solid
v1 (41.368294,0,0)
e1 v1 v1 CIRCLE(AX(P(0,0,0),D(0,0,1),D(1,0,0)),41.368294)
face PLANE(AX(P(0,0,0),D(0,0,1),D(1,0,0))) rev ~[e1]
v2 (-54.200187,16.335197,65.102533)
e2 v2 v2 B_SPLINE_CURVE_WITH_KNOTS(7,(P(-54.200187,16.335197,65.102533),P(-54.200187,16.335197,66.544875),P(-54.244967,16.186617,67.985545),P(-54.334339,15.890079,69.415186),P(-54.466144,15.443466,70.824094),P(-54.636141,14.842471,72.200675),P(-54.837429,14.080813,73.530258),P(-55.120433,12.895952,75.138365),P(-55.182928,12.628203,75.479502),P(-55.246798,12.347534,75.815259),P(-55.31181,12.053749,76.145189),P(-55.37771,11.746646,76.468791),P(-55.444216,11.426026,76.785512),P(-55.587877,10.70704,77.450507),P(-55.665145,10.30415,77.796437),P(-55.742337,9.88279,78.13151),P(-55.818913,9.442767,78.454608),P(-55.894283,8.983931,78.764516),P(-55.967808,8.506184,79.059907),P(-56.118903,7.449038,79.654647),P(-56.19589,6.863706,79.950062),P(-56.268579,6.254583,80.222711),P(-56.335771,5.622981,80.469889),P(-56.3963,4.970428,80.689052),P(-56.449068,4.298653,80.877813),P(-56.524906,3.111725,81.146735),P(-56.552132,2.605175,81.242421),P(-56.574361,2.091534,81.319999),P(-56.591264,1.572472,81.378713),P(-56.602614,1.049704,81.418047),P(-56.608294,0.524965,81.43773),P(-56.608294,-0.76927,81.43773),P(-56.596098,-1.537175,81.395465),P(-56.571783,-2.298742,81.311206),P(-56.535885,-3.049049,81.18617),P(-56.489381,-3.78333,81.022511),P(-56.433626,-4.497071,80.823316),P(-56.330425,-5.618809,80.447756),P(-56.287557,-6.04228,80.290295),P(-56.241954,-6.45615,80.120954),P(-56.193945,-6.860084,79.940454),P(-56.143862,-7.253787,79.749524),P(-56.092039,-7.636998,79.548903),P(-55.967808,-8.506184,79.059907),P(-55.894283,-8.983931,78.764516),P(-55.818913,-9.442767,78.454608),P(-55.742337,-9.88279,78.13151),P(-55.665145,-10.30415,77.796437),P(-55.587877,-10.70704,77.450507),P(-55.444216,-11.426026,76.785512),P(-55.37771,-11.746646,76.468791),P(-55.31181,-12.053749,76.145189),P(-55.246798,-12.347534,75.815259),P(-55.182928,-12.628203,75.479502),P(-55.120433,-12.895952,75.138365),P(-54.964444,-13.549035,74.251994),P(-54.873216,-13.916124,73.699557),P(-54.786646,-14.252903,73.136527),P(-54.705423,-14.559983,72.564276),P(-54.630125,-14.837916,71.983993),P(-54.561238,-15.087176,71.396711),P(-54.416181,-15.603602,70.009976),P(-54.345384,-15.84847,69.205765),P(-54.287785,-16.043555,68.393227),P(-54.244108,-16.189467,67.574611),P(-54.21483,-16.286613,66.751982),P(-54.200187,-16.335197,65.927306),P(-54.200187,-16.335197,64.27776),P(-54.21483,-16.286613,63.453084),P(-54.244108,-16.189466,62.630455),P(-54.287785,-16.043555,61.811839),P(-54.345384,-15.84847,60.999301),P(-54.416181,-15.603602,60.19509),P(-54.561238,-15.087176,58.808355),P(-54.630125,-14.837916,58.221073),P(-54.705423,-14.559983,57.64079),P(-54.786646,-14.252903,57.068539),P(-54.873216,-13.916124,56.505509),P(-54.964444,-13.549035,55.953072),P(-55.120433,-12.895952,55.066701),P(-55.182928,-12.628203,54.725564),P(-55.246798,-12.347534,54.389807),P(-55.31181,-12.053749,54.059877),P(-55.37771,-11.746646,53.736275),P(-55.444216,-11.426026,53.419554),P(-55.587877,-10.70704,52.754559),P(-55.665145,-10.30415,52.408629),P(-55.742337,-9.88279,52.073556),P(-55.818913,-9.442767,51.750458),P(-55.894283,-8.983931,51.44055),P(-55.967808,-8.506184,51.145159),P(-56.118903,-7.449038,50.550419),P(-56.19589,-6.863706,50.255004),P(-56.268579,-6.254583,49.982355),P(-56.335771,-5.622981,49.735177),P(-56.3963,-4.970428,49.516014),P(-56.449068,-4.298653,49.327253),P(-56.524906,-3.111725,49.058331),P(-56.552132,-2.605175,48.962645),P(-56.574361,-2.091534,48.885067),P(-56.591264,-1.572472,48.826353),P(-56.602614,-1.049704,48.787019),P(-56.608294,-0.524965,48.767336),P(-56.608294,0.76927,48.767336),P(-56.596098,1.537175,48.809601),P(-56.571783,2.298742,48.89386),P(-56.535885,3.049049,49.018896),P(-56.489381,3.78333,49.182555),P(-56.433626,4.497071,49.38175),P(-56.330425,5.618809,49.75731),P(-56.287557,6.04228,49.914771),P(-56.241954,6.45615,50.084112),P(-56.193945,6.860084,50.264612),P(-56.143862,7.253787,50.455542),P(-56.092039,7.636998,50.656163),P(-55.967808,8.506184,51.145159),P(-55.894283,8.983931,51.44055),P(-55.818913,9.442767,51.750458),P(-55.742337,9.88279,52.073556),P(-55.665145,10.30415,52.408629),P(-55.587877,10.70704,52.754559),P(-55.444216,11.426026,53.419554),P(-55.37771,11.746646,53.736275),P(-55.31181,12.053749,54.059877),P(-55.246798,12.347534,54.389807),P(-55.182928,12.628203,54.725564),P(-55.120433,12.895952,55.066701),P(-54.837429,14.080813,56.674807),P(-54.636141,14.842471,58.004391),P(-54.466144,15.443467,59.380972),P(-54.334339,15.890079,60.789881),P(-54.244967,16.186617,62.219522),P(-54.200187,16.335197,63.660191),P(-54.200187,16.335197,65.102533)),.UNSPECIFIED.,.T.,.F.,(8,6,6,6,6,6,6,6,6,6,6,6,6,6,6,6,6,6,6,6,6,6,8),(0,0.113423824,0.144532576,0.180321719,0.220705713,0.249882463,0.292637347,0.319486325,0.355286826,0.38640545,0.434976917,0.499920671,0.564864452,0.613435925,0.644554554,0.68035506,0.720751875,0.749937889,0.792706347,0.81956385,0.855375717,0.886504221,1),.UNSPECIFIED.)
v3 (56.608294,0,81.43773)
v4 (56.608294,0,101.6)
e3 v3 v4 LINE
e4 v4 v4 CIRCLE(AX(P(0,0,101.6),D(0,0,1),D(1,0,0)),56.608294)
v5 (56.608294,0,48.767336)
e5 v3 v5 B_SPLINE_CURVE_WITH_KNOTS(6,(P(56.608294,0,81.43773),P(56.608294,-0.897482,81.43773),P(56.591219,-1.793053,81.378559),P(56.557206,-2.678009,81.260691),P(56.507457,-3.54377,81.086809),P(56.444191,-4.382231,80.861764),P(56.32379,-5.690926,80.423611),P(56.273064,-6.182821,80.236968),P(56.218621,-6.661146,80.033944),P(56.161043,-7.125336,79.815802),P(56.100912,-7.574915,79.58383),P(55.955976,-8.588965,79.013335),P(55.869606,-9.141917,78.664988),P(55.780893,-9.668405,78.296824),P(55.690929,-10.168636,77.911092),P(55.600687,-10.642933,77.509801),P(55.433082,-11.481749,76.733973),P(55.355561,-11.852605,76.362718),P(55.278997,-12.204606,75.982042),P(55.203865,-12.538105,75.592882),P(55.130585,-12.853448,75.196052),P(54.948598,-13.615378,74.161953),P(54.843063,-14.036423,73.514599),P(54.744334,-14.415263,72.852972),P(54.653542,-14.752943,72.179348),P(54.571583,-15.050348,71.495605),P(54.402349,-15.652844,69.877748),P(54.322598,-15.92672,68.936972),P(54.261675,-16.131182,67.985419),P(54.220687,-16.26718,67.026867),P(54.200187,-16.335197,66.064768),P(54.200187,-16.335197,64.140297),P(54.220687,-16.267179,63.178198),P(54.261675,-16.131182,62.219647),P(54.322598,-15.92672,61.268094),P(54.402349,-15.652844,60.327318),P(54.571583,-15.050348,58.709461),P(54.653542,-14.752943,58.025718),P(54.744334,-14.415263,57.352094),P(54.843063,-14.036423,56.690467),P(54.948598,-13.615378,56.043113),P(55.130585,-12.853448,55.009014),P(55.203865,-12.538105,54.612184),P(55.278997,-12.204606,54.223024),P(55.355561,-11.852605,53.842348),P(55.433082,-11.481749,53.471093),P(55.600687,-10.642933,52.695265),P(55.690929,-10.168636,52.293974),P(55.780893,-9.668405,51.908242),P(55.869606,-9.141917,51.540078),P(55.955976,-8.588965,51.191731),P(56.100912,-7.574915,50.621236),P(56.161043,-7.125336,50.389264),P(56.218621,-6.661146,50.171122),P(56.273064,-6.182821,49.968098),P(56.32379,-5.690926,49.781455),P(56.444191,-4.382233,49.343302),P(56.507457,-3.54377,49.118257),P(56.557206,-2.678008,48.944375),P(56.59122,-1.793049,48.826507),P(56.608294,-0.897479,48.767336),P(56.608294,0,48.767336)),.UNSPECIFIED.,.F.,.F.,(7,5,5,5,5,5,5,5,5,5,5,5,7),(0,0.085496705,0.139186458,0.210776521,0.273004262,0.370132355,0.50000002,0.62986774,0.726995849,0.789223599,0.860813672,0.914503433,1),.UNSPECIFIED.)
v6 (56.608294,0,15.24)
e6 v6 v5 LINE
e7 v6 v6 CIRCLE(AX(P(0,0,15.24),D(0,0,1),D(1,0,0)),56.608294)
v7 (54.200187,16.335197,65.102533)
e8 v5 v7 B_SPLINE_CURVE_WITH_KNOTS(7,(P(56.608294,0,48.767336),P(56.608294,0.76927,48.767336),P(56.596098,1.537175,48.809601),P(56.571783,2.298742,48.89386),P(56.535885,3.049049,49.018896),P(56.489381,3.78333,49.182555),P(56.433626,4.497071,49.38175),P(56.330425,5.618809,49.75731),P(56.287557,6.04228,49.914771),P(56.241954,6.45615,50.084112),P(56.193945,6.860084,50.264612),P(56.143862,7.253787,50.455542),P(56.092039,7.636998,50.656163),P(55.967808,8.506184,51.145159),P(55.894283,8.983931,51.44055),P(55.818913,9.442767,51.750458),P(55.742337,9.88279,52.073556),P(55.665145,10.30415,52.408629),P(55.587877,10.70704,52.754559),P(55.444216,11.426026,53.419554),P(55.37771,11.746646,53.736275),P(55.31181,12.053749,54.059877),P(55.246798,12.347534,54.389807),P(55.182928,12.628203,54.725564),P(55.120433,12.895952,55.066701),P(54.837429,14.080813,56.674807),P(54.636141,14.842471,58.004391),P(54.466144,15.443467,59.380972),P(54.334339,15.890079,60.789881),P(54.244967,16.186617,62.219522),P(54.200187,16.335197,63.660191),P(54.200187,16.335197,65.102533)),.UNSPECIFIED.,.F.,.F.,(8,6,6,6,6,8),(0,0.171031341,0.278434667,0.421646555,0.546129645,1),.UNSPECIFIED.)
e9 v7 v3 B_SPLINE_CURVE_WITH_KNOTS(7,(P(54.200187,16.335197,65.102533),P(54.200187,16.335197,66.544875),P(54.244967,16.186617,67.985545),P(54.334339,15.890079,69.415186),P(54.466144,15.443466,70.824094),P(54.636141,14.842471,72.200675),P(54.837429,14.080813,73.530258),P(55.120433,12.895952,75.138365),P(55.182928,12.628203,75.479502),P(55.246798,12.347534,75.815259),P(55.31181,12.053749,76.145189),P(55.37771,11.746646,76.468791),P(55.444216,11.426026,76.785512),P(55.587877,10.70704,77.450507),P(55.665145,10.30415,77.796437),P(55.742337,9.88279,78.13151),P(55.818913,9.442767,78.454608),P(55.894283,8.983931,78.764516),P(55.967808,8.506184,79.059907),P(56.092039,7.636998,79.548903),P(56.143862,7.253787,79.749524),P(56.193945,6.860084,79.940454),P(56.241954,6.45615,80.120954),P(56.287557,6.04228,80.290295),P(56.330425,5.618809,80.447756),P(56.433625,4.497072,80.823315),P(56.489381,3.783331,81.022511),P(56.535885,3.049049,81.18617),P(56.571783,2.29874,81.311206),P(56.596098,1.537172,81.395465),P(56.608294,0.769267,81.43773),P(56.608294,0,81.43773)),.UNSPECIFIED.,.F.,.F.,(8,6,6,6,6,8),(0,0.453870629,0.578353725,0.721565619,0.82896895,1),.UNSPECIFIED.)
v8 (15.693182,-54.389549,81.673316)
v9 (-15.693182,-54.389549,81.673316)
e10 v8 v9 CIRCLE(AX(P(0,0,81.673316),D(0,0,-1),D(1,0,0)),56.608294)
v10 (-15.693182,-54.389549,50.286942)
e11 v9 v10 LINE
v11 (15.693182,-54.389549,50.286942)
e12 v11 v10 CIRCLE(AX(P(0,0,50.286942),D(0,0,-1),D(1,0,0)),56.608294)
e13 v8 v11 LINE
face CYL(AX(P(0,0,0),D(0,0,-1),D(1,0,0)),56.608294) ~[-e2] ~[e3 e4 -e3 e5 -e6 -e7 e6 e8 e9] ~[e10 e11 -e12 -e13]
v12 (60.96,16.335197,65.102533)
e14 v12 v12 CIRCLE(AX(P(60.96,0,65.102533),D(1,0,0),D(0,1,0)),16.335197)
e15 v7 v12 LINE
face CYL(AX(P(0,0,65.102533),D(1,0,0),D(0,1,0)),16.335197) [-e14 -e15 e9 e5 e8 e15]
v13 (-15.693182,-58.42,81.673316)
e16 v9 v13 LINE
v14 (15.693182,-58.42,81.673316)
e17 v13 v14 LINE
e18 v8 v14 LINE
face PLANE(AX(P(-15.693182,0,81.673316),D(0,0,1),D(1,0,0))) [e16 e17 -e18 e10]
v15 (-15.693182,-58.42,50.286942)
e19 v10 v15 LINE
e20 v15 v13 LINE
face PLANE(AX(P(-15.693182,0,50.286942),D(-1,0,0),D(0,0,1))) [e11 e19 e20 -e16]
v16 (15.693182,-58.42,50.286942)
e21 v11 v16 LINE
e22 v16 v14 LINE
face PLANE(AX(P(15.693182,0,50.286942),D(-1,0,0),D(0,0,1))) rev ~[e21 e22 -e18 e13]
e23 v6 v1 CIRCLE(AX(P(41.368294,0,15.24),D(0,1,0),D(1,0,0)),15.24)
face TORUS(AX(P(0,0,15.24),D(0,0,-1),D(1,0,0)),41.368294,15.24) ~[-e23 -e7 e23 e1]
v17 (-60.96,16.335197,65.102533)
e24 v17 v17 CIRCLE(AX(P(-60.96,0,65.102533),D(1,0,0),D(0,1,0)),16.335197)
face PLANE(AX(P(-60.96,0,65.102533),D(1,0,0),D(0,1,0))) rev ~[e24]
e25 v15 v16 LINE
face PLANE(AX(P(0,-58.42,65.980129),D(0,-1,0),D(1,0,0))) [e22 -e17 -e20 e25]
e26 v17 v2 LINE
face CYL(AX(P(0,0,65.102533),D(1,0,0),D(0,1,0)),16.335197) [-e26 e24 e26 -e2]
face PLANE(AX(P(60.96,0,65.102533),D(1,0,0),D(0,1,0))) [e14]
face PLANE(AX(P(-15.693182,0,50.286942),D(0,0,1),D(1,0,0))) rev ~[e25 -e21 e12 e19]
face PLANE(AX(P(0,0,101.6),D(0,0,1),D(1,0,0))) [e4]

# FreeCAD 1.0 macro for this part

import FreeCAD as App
import Part
import Sketcher
from FreeCAD import Vector
Q = App.Units.Quantity


def edges_at(feature, points):
    """Names of the edges that pass closest to the given points."""
    edges = feature.Shape.Edges
    near = lambda p: min(range(len(edges)), key=lambda i: edges[i].distToShape(Part.Vertex(*p))[0])
    return sorted({f"Edge{near(p) + 1}" for p in points})

doc = App.newDocument("Part")
body = doc.addObject("PartDesign::Body", "Body")

sketch1 = body.newObject("Sketcher::SketchObject", "Sketch")
sketch1.AttachmentSupport = (doc.getObject("XY_Plane"), [""])
sketch1.MapMode = "FlatFace"
sketch1.addGeometry(Part.Circle(Vector(0, 0, 0), Vector(0, 0, 1), 57), False)
sketch1.addConstraint(Sketcher.Constraint("Coincident", 0, 3, -1, 1))
sketch1.addConstraint(Sketcher.Constraint("Diameter", 0, Q("113.216588 mm")))
pad1 = body.newObject("PartDesign::Pad", "Pad")
pad1.Profile = sketch1
pad1.Length = Q("4 in")
doc.recompute()

fillet = body.newObject("PartDesign::Fillet", "Fillet")
fillet.Base = (pad1, edges_at(pad1, [(-56.608, 0, 0)]))
fillet.Radius = Q("0.6 in")

sketch2 = body.newObject("Sketcher::SketchObject", "Sketch001")
sketch2.AttachmentSupport = (doc.getObject("XZ_Plane"), [""])
sketch2.MapMode = "FlatFace"
sketch2.addGeometry(Part.LineSegment(Vector(-16, 82, 0), Vector(-16, 50, 0)), False)
sketch2.addGeometry(Part.LineSegment(Vector(-16, 50, 0), Vector(16, 50, 0)), False)
sketch2.addGeometry(Part.LineSegment(Vector(16, 50, 0), Vector(16, 82, 0)), False)
sketch2.addGeometry(Part.LineSegment(Vector(16, 82, 0), Vector(-16, 82, 0)), False)
sketch2.addConstraint(Sketcher.Constraint("Coincident", 0, 2, 1, 1))
sketch2.addConstraint(Sketcher.Constraint("Coincident", 1, 2, 2, 1))
sketch2.addConstraint(Sketcher.Constraint("Coincident", 2, 2, 3, 1))
sketch2.addConstraint(Sketcher.Constraint("Coincident", 3, 2, 0, 1))
sketch2.addConstraint(Sketcher.Constraint("Vertical", 0))
sketch2.addConstraint(Sketcher.Constraint("Horizontal", 1))
sketch2.addConstraint(Sketcher.Constraint("Vertical", 2))
sketch2.addConstraint(Sketcher.Constraint("Horizontal", 3))
sketch2.addConstraint(Sketcher.Constraint("DistanceX", 1, 1, 1, 2, Q("31.386364 mm")))
sketch2.addConstraint(Sketcher.Constraint("DistanceY", 0, 2, 0, 1, Q("31.386374 mm")))
sketch2.addConstraint(Sketcher.Constraint("DistanceX", 0, 2, -1, 1, Q("15.693182 mm")))
sketch2.addConstraint(Sketcher.Constraint("DistanceY", -1, 1, 0, 2, Q("50.286942 mm")))
pad2 = body.newObject("PartDesign::Pad", "Pad001")
pad2.Profile = sketch2
pad2.Length = Q("2.3 in")

sketch3 = body.newObject("Sketcher::SketchObject", "Sketch002")
sketch3.AttachmentSupport = (doc.getObject("YZ_Plane"), [""])
sketch3.MapMode = "FlatFace"
sketch3.addGeometry(Part.Circle(Vector(0, 65, 0), Vector(0, 0, 1), 16), False)
sketch3.addConstraint(Sketcher.Constraint("PointOnObject", 0, 3, -2))
sketch3.addConstraint(Sketcher.Constraint("Diameter", 0, Q("32.670394 mm")))
sketch3.addConstraint(Sketcher.Constraint("DistanceY", -1, 1, 0, 3, Q("65.102533 mm")))
pad3 = body.newObject("PartDesign::Pad", "Pad002")
pad3.Profile = sketch3
pad3.Length = Q("4.8 in")
pad3.Midplane = True

doc.recompute()
